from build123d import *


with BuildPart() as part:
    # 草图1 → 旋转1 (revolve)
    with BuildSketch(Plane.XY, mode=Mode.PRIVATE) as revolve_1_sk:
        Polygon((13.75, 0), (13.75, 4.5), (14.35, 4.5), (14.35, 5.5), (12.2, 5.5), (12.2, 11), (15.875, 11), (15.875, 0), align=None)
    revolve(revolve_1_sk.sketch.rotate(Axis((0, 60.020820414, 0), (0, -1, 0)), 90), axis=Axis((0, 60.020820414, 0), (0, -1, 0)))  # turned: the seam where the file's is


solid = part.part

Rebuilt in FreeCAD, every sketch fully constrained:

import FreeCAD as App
import Part
import Sketcher

V = App.Vector


def add_polygon(sketch, points):
    """Adds a closed chain of lines whose ends are joined by coincident constraints."""
    first, n = sketch.GeometryCount, len(points)
    for a, b in zip(points, points[1:] + points[:1]):
        sketch.addGeometry(Part.LineSegment(App.Vector(*a, 0), App.Vector(*b, 0)), False)
    for i in range(n):
        sketch.addConstraint(Sketcher.Constraint("Coincident", first + i, 2, first + (i + 1) % n, 1))

doc = App.newDocument("Part")
params = doc.addObject("Spreadsheet::Sheet", "Params")
for row, (alias, value) in enumerate([
    ("sketch1_height", "11 mm"),
    ("sketch1_height2", "1 mm"),
    ("sketch1_width", "0.6 mm"),
    ("sketch1_height3", "4.5 mm"),
    ("sketch1_width2", "2.15 mm"),
    ("revolution_angle", "360 deg"),
], start=1):
    params.set(f"A{row}", alias)
    params.set(f"B{row}", "=" + value)
    params.setAlias(f"B{row}", alias)

body = doc.addObject("PartDesign::Body", "Body")

# Sketch on XY plane
sketch1 = body.newObject("Sketcher::SketchObject", "Sketch")
sketch1.AttachmentSupport = (doc.getObject("XY_Plane"), [""])
sketch1.MapMode = "FlatFace"
add_polygon(sketch1, [(13.75, 4.5), (13.75, 0), (15.875, 0), (15.875, 11), (12.2, 11), (12.2, 5.5), (14.35, 5.5), (14.35, 4.5)])  # lines 0-7
sketch1.addConstraint([
    Sketcher.Constraint("Vertical", 0),
    Sketcher.Constraint("Horizontal", 1),
    Sketcher.Constraint("Vertical", 2),
    Sketcher.Constraint("Horizontal", 3),
    Sketcher.Constraint("Vertical", 4),
    Sketcher.Constraint("Horizontal", 5),
    Sketcher.Constraint("Vertical", 6),
    Sketcher.Constraint("Horizontal", 7),
    Sketcher.Constraint("PointOnObject", 0, 2, -1),
    Sketcher.Constraint("DistanceY", 2, 1, 2, 2, 11.0),
    Sketcher.Constraint("DistanceY", 6, 2, 6, 1, 1.0),
    Sketcher.Constraint("DistanceX", 7, 2, 7, 1, 0.6),
    Sketcher.Constraint("DistanceY", 0, 2, 0, 1, 4.5),
    Sketcher.Constraint("DistanceX", 5, 1, 5, 2, 2.15),
    Sketcher.Constraint("DistanceX", -1, 1, 3, 2, 12.2),
    Sketcher.Constraint("DistanceX", 1, 1, 1, 2, 2.125),
])
sketch1.setExpression("Constraints[17]", "Params.sketch1_height")
sketch1.setExpression("Constraints[18]", "Params.sketch1_height2")
sketch1.setExpression("Constraints[19]", "Params.sketch1_width")
sketch1.setExpression("Constraints[20]", "Params.sketch1_height3")
sketch1.setExpression("Constraints[21]", "Params.sketch1_width2")
revolution = body.newObject("PartDesign::Revolution", "Revolution")
revolution.Profile = sketch1
revolution.ReferenceAxis = (sketch1, ["V_Axis"])
revolution.setExpression("Angle", "Params.revolution_angle")

doc.recompute()
